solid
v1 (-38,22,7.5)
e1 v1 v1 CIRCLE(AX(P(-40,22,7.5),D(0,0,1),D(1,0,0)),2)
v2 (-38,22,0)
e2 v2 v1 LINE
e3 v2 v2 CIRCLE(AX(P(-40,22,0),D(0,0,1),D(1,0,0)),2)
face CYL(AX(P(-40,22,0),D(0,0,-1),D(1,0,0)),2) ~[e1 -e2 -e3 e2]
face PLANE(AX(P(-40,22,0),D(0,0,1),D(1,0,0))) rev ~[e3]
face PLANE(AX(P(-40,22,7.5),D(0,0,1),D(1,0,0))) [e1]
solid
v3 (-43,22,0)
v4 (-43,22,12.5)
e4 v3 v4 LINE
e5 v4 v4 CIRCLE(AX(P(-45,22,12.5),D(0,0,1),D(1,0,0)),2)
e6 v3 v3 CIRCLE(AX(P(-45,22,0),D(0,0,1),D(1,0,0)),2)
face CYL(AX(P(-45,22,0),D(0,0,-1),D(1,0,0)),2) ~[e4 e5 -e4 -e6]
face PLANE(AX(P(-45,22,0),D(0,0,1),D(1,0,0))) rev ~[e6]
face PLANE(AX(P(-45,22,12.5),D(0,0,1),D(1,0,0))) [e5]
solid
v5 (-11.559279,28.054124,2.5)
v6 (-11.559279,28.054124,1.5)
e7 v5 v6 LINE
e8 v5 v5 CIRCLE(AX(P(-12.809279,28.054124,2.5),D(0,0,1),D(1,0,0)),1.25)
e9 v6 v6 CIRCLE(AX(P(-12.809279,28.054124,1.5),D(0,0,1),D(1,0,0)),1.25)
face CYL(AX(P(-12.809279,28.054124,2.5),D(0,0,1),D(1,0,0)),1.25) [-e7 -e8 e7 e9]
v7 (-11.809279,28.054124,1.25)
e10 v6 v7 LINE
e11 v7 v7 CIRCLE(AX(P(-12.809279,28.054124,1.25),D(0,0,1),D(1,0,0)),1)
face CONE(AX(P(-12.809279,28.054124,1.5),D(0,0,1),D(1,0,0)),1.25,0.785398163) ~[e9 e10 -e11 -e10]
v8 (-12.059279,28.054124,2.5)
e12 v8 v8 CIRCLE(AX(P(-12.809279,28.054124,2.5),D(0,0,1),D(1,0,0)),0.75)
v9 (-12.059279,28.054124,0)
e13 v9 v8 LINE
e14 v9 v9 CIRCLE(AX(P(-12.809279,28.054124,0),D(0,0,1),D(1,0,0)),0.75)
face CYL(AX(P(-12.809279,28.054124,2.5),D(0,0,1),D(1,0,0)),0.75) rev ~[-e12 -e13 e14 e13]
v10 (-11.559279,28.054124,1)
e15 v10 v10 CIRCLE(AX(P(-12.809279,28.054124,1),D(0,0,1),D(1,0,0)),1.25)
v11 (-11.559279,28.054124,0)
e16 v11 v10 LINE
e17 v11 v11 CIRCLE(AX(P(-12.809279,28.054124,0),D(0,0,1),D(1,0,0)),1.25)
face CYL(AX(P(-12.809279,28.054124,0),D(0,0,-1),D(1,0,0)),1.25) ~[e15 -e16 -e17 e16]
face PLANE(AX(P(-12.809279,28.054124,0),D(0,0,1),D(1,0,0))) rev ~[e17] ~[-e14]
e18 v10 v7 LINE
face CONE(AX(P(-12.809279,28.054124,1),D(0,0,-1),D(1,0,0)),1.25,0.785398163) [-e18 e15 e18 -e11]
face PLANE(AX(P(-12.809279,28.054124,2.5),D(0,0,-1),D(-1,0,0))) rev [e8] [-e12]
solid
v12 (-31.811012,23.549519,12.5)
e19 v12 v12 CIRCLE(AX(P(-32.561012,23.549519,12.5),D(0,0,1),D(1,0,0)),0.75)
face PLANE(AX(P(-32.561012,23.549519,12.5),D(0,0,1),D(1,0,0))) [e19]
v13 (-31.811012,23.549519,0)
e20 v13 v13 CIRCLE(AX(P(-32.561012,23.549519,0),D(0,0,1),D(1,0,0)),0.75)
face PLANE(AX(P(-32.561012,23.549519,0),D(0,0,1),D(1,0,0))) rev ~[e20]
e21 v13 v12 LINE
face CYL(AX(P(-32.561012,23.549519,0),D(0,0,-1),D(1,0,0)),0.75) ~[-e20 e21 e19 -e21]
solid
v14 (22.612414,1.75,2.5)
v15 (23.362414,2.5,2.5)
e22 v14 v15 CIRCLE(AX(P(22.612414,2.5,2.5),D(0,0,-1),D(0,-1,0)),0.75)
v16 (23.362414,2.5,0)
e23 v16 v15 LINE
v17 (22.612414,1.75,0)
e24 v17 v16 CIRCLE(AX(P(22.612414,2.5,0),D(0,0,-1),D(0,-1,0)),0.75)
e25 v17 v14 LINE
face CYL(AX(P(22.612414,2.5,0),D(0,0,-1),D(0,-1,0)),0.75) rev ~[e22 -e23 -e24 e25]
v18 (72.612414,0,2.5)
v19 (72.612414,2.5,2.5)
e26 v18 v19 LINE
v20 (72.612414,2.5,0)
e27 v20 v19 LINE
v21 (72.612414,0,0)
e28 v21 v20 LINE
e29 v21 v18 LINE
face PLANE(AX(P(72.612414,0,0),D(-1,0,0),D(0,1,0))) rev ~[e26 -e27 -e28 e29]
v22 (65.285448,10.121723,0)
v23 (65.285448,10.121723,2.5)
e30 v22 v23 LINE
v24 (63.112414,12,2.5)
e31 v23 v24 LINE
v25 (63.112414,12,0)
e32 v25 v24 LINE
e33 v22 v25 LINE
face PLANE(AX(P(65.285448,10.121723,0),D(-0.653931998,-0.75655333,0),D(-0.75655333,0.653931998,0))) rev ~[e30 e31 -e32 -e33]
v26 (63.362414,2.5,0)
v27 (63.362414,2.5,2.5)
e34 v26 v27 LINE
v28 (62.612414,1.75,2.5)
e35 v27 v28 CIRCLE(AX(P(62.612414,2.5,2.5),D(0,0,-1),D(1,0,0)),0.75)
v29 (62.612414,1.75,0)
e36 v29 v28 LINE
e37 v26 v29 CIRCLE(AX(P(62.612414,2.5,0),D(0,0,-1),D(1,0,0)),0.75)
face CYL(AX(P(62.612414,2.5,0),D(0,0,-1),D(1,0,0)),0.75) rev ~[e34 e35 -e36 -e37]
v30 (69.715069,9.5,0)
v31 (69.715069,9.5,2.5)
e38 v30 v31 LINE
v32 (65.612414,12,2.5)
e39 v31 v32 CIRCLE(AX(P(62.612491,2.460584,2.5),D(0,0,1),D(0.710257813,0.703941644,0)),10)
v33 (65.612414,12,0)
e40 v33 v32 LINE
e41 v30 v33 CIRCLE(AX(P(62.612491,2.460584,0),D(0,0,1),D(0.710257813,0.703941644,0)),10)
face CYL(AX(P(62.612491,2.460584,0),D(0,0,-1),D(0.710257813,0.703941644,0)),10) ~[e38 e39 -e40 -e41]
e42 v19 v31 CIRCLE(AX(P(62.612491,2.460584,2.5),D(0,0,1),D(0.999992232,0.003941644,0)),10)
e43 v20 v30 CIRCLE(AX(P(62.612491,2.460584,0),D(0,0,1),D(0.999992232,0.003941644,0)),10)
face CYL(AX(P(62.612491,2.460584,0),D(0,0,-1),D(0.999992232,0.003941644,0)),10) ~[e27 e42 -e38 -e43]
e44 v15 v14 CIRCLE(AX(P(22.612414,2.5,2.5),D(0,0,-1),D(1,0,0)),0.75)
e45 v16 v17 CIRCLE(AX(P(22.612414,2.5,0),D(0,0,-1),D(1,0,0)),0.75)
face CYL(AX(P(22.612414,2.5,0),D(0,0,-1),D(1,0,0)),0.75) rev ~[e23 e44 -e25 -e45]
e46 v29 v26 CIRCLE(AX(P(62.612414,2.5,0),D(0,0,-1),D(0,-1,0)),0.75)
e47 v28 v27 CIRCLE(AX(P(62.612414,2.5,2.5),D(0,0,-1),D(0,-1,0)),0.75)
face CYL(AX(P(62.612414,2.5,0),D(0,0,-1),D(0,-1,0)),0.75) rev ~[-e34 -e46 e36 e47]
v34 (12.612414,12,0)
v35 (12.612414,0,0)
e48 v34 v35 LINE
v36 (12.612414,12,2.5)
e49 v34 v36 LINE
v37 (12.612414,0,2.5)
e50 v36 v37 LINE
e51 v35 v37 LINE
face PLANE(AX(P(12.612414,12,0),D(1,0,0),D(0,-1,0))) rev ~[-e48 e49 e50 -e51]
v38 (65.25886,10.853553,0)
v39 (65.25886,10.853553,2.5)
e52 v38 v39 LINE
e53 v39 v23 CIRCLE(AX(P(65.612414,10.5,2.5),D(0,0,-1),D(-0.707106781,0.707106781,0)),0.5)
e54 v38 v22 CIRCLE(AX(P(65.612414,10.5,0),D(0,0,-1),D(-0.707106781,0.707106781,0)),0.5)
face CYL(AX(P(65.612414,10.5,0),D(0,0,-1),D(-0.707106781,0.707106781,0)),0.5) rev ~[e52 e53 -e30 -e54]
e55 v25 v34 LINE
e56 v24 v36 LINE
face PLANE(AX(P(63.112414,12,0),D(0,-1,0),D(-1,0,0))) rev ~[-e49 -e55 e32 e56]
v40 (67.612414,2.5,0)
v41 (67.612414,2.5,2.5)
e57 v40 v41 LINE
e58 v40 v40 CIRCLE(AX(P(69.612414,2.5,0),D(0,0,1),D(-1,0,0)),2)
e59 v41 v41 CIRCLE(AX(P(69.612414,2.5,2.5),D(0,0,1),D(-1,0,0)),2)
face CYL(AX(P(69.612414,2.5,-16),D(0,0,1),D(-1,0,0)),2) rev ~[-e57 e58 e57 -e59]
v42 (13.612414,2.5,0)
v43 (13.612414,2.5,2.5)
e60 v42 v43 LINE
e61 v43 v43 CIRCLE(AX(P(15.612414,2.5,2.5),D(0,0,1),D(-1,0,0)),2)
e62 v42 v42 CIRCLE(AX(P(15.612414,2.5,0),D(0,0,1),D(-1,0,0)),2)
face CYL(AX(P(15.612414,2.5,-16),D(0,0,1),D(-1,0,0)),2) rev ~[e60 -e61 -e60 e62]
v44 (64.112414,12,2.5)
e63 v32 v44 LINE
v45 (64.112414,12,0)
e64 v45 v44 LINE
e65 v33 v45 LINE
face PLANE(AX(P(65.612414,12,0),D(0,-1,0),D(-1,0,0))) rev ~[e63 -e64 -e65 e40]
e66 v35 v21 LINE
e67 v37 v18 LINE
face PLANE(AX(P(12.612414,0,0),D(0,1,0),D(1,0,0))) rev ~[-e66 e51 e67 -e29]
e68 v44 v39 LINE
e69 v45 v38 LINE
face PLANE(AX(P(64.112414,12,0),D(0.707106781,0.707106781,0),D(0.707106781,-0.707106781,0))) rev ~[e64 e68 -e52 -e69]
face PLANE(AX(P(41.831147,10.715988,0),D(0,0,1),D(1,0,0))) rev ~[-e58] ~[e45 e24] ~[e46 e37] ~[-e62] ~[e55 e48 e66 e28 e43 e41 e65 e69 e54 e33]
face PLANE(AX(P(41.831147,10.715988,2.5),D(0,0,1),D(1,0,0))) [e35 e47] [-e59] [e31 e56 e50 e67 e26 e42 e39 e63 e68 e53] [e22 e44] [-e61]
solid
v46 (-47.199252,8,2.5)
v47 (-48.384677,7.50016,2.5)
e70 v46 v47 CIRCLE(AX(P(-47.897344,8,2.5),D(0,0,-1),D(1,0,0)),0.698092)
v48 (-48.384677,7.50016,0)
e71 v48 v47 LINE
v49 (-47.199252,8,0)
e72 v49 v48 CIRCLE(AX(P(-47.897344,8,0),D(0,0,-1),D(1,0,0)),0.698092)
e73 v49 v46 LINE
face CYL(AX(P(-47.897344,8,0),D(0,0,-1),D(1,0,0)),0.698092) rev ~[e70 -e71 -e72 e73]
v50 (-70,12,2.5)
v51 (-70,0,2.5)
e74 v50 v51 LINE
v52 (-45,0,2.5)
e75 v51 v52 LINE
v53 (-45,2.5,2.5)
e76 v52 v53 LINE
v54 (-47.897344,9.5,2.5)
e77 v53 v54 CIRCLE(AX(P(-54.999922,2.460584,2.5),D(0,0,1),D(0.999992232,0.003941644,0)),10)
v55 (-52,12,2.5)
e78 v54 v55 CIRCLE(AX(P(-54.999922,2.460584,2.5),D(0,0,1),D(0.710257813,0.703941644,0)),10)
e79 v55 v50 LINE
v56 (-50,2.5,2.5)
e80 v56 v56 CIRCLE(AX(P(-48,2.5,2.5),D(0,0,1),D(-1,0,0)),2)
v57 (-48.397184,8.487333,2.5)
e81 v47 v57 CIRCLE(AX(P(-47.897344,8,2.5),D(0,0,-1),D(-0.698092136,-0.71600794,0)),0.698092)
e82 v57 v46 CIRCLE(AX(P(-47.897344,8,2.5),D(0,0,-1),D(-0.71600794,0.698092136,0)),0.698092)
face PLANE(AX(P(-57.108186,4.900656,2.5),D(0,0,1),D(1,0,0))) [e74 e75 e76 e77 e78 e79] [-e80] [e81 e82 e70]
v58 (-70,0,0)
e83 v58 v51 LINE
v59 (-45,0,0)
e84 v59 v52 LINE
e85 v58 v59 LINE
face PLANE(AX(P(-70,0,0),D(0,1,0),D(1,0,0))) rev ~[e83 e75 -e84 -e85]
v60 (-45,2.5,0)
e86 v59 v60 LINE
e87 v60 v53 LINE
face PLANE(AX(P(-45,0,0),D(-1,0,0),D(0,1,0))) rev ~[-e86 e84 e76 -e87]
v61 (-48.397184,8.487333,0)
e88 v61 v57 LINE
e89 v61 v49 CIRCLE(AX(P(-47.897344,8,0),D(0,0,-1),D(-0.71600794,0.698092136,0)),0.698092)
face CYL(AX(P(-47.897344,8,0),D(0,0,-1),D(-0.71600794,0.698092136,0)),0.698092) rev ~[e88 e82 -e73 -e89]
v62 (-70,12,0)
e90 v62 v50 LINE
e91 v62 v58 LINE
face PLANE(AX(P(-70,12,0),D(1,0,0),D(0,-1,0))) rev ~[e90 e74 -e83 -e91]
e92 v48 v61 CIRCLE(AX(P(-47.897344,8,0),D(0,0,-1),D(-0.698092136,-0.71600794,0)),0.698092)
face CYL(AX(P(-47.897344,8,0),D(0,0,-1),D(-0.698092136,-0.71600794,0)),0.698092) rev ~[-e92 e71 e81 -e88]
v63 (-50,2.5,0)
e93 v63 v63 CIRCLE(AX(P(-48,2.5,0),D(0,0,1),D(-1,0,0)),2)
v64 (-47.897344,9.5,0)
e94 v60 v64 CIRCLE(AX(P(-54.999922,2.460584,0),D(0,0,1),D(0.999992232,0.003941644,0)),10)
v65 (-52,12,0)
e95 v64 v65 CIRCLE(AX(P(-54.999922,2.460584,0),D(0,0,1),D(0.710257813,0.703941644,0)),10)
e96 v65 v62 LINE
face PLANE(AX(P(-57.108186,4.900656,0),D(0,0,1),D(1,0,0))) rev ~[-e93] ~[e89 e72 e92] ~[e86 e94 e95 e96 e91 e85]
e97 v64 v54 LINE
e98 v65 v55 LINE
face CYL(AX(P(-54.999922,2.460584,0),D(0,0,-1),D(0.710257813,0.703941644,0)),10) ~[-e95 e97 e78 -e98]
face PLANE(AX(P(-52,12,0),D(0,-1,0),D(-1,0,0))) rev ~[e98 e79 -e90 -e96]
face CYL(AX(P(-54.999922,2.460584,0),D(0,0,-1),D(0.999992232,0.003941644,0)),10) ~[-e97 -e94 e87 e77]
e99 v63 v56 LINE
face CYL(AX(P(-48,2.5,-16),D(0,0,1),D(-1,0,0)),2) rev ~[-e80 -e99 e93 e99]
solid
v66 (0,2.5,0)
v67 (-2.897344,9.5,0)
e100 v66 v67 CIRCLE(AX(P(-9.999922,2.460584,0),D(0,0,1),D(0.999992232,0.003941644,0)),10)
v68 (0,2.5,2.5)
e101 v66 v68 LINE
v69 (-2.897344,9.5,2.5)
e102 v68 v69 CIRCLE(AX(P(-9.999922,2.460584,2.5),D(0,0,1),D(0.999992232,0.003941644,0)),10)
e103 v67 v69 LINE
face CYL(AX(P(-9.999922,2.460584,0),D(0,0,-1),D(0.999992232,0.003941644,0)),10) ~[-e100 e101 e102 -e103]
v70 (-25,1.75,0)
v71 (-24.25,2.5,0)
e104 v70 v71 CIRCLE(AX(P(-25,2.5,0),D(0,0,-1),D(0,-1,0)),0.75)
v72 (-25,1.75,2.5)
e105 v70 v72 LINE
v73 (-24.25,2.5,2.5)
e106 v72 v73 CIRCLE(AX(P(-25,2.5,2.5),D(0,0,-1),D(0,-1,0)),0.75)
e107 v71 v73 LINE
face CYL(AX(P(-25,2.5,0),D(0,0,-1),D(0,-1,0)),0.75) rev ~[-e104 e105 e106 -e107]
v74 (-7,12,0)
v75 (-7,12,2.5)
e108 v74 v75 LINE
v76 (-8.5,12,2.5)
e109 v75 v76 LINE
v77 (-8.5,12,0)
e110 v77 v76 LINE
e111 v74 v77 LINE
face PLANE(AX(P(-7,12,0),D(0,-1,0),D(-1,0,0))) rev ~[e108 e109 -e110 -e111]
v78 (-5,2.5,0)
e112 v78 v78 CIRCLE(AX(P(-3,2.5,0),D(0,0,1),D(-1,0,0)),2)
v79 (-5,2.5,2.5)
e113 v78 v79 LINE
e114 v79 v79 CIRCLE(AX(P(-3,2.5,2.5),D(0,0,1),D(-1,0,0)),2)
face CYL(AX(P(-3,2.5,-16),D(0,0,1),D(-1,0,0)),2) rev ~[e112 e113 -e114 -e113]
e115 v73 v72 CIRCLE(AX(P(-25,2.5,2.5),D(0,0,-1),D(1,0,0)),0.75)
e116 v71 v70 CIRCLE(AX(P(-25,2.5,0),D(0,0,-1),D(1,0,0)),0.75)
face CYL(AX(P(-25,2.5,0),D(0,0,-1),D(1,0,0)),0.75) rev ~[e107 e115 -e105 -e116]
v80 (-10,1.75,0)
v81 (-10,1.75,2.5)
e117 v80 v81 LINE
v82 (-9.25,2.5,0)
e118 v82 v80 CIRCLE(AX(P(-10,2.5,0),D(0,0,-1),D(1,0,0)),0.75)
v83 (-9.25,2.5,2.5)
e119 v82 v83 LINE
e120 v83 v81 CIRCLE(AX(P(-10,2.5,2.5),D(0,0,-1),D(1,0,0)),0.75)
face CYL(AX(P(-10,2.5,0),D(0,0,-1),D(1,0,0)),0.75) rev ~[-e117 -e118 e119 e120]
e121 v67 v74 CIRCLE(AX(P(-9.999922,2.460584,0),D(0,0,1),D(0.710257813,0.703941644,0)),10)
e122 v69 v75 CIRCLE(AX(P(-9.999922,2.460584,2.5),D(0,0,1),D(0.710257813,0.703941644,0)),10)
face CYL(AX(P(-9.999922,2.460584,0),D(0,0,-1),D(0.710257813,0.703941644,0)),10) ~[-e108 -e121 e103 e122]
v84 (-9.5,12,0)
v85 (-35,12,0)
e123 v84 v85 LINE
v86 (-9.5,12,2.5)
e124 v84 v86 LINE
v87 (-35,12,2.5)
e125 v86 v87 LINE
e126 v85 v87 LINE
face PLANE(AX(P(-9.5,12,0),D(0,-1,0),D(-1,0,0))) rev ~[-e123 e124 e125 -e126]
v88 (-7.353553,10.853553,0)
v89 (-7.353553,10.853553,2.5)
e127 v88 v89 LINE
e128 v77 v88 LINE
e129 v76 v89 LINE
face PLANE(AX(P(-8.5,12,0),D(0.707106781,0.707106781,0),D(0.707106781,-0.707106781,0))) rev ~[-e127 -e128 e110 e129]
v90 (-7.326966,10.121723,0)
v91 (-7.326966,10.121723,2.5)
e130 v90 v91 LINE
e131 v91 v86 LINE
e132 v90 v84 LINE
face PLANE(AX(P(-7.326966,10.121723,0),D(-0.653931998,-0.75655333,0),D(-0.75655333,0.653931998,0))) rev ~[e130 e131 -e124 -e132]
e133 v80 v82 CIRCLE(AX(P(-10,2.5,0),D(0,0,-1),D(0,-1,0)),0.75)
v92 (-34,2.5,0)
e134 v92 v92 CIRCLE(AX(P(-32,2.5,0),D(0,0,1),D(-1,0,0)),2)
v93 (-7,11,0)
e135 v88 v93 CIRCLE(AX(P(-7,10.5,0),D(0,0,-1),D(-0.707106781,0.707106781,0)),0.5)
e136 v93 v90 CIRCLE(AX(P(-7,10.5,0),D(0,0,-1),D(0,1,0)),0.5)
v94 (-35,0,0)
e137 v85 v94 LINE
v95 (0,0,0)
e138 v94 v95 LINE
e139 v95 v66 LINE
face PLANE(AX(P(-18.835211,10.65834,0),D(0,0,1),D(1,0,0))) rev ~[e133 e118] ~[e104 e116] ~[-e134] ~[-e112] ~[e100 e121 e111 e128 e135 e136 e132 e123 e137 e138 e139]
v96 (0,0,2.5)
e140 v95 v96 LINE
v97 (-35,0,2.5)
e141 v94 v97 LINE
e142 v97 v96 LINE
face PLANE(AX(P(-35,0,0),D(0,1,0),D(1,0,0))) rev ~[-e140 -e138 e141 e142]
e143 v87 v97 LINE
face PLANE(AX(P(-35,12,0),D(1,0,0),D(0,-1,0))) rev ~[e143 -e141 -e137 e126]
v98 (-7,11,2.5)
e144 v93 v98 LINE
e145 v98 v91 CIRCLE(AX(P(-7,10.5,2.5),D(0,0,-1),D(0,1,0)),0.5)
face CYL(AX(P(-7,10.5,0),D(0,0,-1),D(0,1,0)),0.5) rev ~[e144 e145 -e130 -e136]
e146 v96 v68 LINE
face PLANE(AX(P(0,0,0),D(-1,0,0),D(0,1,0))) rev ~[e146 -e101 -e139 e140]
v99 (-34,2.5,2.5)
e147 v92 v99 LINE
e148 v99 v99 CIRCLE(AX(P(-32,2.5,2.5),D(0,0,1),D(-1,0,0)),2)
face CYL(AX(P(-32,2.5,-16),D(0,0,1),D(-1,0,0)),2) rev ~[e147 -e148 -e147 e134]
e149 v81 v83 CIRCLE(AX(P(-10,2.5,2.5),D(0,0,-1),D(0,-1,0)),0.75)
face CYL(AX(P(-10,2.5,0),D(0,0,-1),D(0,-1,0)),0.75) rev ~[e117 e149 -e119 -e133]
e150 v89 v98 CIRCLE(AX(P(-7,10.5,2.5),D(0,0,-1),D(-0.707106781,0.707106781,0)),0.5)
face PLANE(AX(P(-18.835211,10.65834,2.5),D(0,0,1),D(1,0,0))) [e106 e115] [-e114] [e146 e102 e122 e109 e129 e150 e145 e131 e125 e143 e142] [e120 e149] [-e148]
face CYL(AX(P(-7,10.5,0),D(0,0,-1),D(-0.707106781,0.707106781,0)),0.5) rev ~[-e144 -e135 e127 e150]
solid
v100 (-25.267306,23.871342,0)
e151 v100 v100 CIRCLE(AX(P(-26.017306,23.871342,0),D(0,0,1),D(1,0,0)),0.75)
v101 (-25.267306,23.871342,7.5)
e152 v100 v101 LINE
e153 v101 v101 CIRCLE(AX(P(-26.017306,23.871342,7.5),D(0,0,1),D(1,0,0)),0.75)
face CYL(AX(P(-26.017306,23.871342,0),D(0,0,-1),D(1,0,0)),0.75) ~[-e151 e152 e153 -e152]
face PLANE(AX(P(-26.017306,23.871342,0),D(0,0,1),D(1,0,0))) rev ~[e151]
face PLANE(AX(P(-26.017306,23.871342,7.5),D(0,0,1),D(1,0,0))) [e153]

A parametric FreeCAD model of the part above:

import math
import FreeCAD as App
import Part
import Sketcher

V = App.Vector
Q = App.Units.Quantity


def edges_at(feature, points):
    """Names of the edges that pass closest to the given points."""
    edges = feature.Shape.Edges
    near = lambda p: min(range(len(edges)), key=lambda i: edges[i].distToShape(Part.Vertex(*p))[0])
    return sorted({f"Edge{near(p) + 1}" for p in points})

doc = App.newDocument("Part")
body = doc.addObject("PartDesign::Body", "Body")

sketch1 = body.newObject("Sketcher::SketchObject", "Sketch")
sketch1.AttachmentSupport = (doc.getObject("XY_Plane"), [""])
sketch1.MapMode = "FlatFace"
sketch1.addGeometry([
    Part.LineSegment(V(-70, 0, 0), V(-45, 0, 0)),
    Part.LineSegment(V(-45, 0, 0), V(-45, 2.5, 0)),
    Part.ArcOfCircle(Part.Circle(V(-55, 2.5, 0), V(0, 0, 1), 10), math.radians(0), math.radians(45)),
    Part.ArcOfCircle(Part.Circle(V(-55, 2.5, 0), V(0, 0, 1), 10), math.radians(45), math.radians(73)),
    Part.LineSegment(V(-52, 12, 0), V(-70, 12, 0)),
    Part.LineSegment(V(-70, 12, 0), V(-70, 0, 0)),
    Part.ArcOfCircle(Part.Circle(V(-47.9, 8, 0), V(0, 0, 1), 0.7), math.radians(0), math.radians(136)),
    Part.ArcOfCircle(Part.Circle(V(-47.9, 8, 0), V(0, 0, 1), 0.7), math.radians(-134), math.radians(0)),
    Part.ArcOfCircle(Part.Circle(V(-47.9, 8, 0), V(0, 0, 1), 0.7), math.radians(136), math.radians(226)),
], False)
sketch1.addConstraint([
    Sketcher.Constraint("Coincident", 0, 2, 1, 1),
    Sketcher.Constraint("Coincident", 1, 2, 2, 1),
    Sketcher.Constraint("Tangent", 2, 2, 3, 1),
    Sketcher.Constraint("Coincident", 3, 2, 4, 1),
    Sketcher.Constraint("Coincident", 4, 2, 5, 1),
    Sketcher.Constraint("Coincident", 5, 2, 0, 1),
    Sketcher.Constraint("Tangent", 6, 1, 7, 2),
    Sketcher.Constraint("Tangent", 7, 1, 8, 2),
    Sketcher.Constraint("Tangent", 8, 1, 6, 2),
    Sketcher.Constraint("Horizontal", 0),
    Sketcher.Constraint("Vertical", 1),
    Sketcher.Constraint("Horizontal", 4),
    Sketcher.Constraint("Vertical", 5),
    Sketcher.Constraint("Equal", 2, 3),
    Sketcher.Constraint("PointOnObject", 0, 2, -1),
    Sketcher.Constraint("Horizontal", 8, 3, 6, 1),
    Sketcher.Constraint("Vertical", 8, 3, 2, 2),
    Sketcher.Constraint("Radius", 2, Q("10 mm")),
    Sketcher.Constraint("DistanceX", 0, 1, 0, 2, Q("25 mm")),
    Sketcher.Constraint("DistanceX", 4, 2, 4, 1, Q("18 mm")),
    Sketcher.Constraint("DistanceY", 5, 2, 5, 1, Q("12 mm")),
    Sketcher.Constraint("DistanceY", 1, 1, 1, 2, Q("2.5 mm")),
    Sketcher.Constraint("DistanceY", -1, 1, 6, 3, Q("8 mm")),
    Sketcher.Constraint("DistanceX", 0, 2, -1, 1, Q("45 mm")),
    Sketcher.Constraint("DistanceY", 1, 2, 2, 2, Q("7 mm")),
    Sketcher.Constraint("Radius", 6, Q("0.698092 mm")),
    Sketcher.Constraint("DistanceY", -1, 1, 7, 1, Q("7.50016 mm")),
    Sketcher.Constraint("DistanceX", 8, 1, 6, 3, Q("0.49984 mm")),
])
pad1 = body.newObject("PartDesign::Pad", "Pad")
pad1.Profile = sketch1
pad1.Length = 2.5

sketch2 = body.newObject("Sketcher::SketchObject", "Sketch001")
sketch2.AttachmentSupport = (doc.getObject("XY_Plane"), [""])
sketch2.MapMode = "FlatFace"
sketch2.addGeometry([
    Part.Circle(V(-3, 2.5, 0), V(0, 0, 1), 2),
    Part.Circle(V(69.6, 2.5, 0), V(0, 0, 1), 2),
    Part.Circle(V(-48, 2.5, 0), V(0, 0, 1), 2),
    Part.Circle(V(-32, 2.5, 0), V(0, 0, 1), 2),
    Part.Circle(V(15.6, 2.5, 0), V(0, 0, 1), 2),
], False)
sketch2.addConstraint([
    Sketcher.Constraint("Equal", 0, 1),
    Sketcher.Constraint("Equal", 1, 2),
    Sketcher.Constraint("Equal", 2, 3),
    Sketcher.Constraint("Equal", 3, 4),
    Sketcher.Constraint("Horizontal", 0, 3, 1, 3),
    Sketcher.Constraint("Horizontal", 1, 3, 2, 3),
    Sketcher.Constraint("Horizontal", 2, 3, 3, 3),
    Sketcher.Constraint("Horizontal", 3, 3, 4, 3),
    Sketcher.Constraint("Diameter", 0, Q("4 mm")),
    Sketcher.Constraint("DistanceX", 0, 3, -1, 1, Q("3 mm")),
    Sketcher.Constraint("DistanceX", 2, 3, -1, 1, Q("48 mm")),
    Sketcher.Constraint("DistanceX", 3, 3, -1, 1, Q("32 mm")),
    Sketcher.Constraint("DistanceX", 4, 3, 1, 3, Q("54 mm")),
    Sketcher.Constraint("DistanceY", -1, 1, 0, 3, Q("2.5 mm")),
    Sketcher.Constraint("DistanceX", -1, 1, 1, 3, Q("69.612414 mm")),
])
doc.recompute()
hole = body.newObject("PartDesign::Hole", "Hole")
hole.Profile = sketch2
hole.ThreadType = "None"
hole.Diameter = 4
hole.DepthType = "Dimension"
hole.Depth = 16
hole.DrillPoint = "Angled"
hole.DrillPointAngle = 118
hole.Reversed = True
body2 = doc.addObject("PartDesign::Body", "Body001")

sketch3 = body2.newObject("Sketcher::SketchObject", "Sketch002")
sketch3.AttachmentSupport = (doc.getObject("XY_Plane001"), [""])
sketch3.MapMode = "FlatFace"
sketch3.addGeometry([
    Part.LineSegment(V(12.6, 12, 0), V(12.6, 0, 0)),
    Part.LineSegment(V(12.6, 0, 0), V(72.6, 0, 0)),
    Part.LineSegment(V(72.6, 0, 0), V(72.6, 2.5, 0)),
    Part.ArcOfCircle(Part.Circle(V(62.6, 2.5, 0), V(0, 0, 1), 10), math.radians(0), math.radians(45)),
    Part.ArcOfCircle(Part.Circle(V(62.6, 2.5, 0), V(0, 0, 1), 10), math.radians(45), math.radians(73)),
    Part.LineSegment(V(65.6, 12, 0), V(64.1, 12, 0)),
    Part.LineSegment(V(64.1, 12, 0), V(65.3, 10.9, 0)),
    Part.ArcOfCircle(Part.Circle(V(65.6, 10.5, 0), V(0, 0, 1), 0.5), math.radians(-131), math.radians(135)),
    Part.LineSegment(V(65.3, 10.1, 0), V(63.1, 12, 0)),
    Part.LineSegment(V(63.1, 12, 0), V(12.6, 12, 0)),
    Part.ArcOfCircle(Part.Circle(V(22.6, 2.5, 0), V(0, 0, 1), 0.8), math.radians(0), math.radians(270)),
    Part.ArcOfCircle(Part.Circle(V(22.6, 2.5, 0), V(0, 0, 1), 0.8), math.radians(-90), math.radians(0)),
    Part.ArcOfCircle(Part.Circle(V(62.6, 2.5, 0), V(0, 0, 1), 0.8), math.radians(0), math.radians(270)),
    Part.ArcOfCircle(Part.Circle(V(62.6, 2.5, 0), V(0, 0, 1), 0.8), math.radians(-90), math.radians(0)),
], False)
sketch3.addConstraint([
    Sketcher.Constraint("Coincident", 0, 2, 1, 1),
    Sketcher.Constraint("Coincident", 1, 2, 2, 1),
    Sketcher.Constraint("Coincident", 2, 2, 3, 1),
    Sketcher.Constraint("Tangent", 3, 2, 4, 1),
    Sketcher.Constraint("Coincident", 4, 2, 5, 1),
    Sketcher.Constraint("Coincident", 5, 2, 6, 1),
    Sketcher.Constraint("Coincident", 6, 2, 7, 2),
    Sketcher.Constraint("Tangent", 7, 1, 8, 1),
    Sketcher.Constraint("Coincident", 8, 2, 9, 1),
    Sketcher.Constraint("Coincident", 9, 2, 0, 1),
    Sketcher.Constraint("Tangent", 10, 1, 11, 2),
    Sketcher.Constraint("Coincident", 11, 1, 10, 2),
    Sketcher.Constraint("Tangent", 12, 1, 13, 2),
    Sketcher.Constraint("Coincident", 13, 1, 12, 2),
    Sketcher.Constraint("Vertical", 0),
    Sketcher.Constraint("Horizontal", 1),
    Sketcher.Constraint("Vertical", 2),
    Sketcher.Constraint("Horizontal", 5),
    Sketcher.Constraint("Horizontal", 9),
    Sketcher.Constraint("Equal", 3, 4),
    Sketcher.Constraint("Equal", 11, 12),
    Sketcher.Constraint("PointOnObject", 0, 2, -1),
    Sketcher.Constraint("Horizontal", 11, 3, 12, 3),
    Sketcher.Constraint("Horizontal", 13, 3, 2, 2),
    Sketcher.Constraint("Horizontal", 5, 2, 8, 2),
    Sketcher.Constraint("Horizontal", 2, 2, 10, 1),
    Sketcher.Constraint("Horizontal", 10, 1, 12, 1),
    Sketcher.Constraint("Vertical", 7, 3, 4, 2),
    Sketcher.Constraint("Vertical", 10, 3, 11, 1),
    Sketcher.Constraint("Vertical", 12, 3, 13, 1),
    Sketcher.Constraint("Radius", 3, Q("10 mm")),
    Sketcher.Constraint("Radius", 7, Q("0.5 mm")),
    Sketcher.Constraint("DistanceX", 1, 1, 1, 2, Q("60 mm")),
    Sketcher.Constraint("DistanceY", 0, 2, 0, 1, Q("12 mm")),
    Sketcher.Constraint("Angle", 6, Q("-45 deg")),
    Sketcher.Constraint("Radius", 10, Q("0.75 mm")),
    Sketcher.Constraint("DistanceX", 5, 2, 5, 1, Q("1.5 mm")),
    Sketcher.Constraint("DistanceX", 9, 2, 9, 1, Q("50.5 mm")),
    Sketcher.Constraint("DistanceY", 2, 1, 2, 2, Q("2.5 mm")),
    Sketcher.Constraint("DistanceX", 10, 3, 7, 3, Q("43 mm")),
    Sketcher.Constraint("DistanceY", 10, 3, 7, 3, Q("8 mm")),
    Sketcher.Constraint("DistanceX", 12, 3, 7, 3, Q("3 mm")),
    Sketcher.Constraint("DistanceX", 0, 2, 10, 3, Q("10 mm")),
    Sketcher.Constraint("DistanceY", 3, 2, 7, 3, Q("1 mm")),
    Sketcher.Constraint("DistanceX", -1, 1, 3, 3, Q("62.612491 mm")),
])
pad2 = body2.newObject("PartDesign::Pad", "Pad001")
pad2.Profile = sketch3
pad2.Length = 2.5

sketch4 = body2.newObject("Sketcher::SketchObject", "Sketch003")
sketch4.AttachmentSupport = (doc.getObject("XY_Plane001"), [""])
sketch4.MapMode = "FlatFace"
sketch4.addGeometry([
    Part.Circle(V(-3, 2.5, 0), V(0, 0, 1), 2),
    Part.Circle(V(69.6, 2.5, 0), V(0, 0, 1), 2),
    Part.Circle(V(-48, 2.5, 0), V(0, 0, 1), 2),
    Part.Circle(V(-32, 2.5, 0), V(0, 0, 1), 2),
    Part.Circle(V(15.6, 2.5, 0), V(0, 0, 1), 2),
], False)
sketch4.addConstraint([
    Sketcher.Constraint("Equal", 0, 1),
    Sketcher.Constraint("Equal", 1, 2),
    Sketcher.Constraint("Equal", 2, 3),
    Sketcher.Constraint("Equal", 3, 4),
    Sketcher.Constraint("Horizontal", 0, 3, 1, 3),
    Sketcher.Constraint("Horizontal", 1, 3, 2, 3),
    Sketcher.Constraint("Horizontal", 2, 3, 3, 3),
    Sketcher.Constraint("Horizontal", 3, 3, 4, 3),
    Sketcher.Constraint("Diameter", 0, Q("4 mm")),
    Sketcher.Constraint("DistanceX", 0, 3, -1, 1, Q("3 mm")),
    Sketcher.Constraint("DistanceX", 2, 3, -1, 1, Q("48 mm")),
    Sketcher.Constraint("DistanceX", 3, 3, -1, 1, Q("32 mm")),
    Sketcher.Constraint("DistanceX", 4, 3, 1, 3, Q("54 mm")),
    Sketcher.Constraint("DistanceY", -1, 1, 0, 3, Q("2.5 mm")),
    Sketcher.Constraint("DistanceX", -1, 1, 1, 3, Q("69.612414 mm")),
])
doc.recompute()
hole2 = body2.newObject("PartDesign::Hole", "Hole001")
hole2.Profile = sketch4
hole2.ThreadType = "None"
hole2.Diameter = 4
hole2.DepthType = "Dimension"
hole2.Depth = 16
hole2.DrillPoint = "Angled"
hole2.DrillPointAngle = 118
hole2.Reversed = True
body3 = doc.addObject("PartDesign::Body", "Body002")

sketch5 = body3.newObject("Sketcher::SketchObject", "Sketch004")
sketch5.AttachmentSupport = (doc.getObject("XY_Plane002"), [""])
sketch5.MapMode = "FlatFace"
sketch5.addGeometry([
    Part.ArcOfCircle(Part.Circle(V(-10, 2.46, 0), V(0, 0, 1), 10), math.radians(45), math.radians(73)),
    Part.LineSegment(V(-7, 12, 0), V(-8.5, 12, 0)),
    Part.LineSegment(V(-8.5, 12, 0), V(-7.35, 10.85, 0)),
    Part.ArcOfCircle(Part.Circle(V(-7, 10.5, 0), V(0, 0, 1), 0.5), math.radians(90), math.radians(135)),
    Part.ArcOfCircle(Part.Circle(V(-7, 10.5, 0), V(0, 0, 1), 0.5), math.radians(-131), math.radians(90)),
    Part.LineSegment(V(-7.33, 10.12, 0), V(-9.5, 12, 0)),
    Part.LineSegment(V(-9.5, 12, 0), V(-35, 12, 0)),
    Part.LineSegment(V(-35, 12, 0), V(-35, 0, 0)),
    Part.LineSegment(V(-35, 0, 0), V(0, 0, 0)),
    Part.LineSegment(V(0, 0, 0), V(0, 2.5, 0)),
    Part.ArcOfCircle(Part.Circle(V(-10, 2.46, 0), V(0, 0, 1), 10), math.radians(0), math.radians(45)),
    Part.ArcOfCircle(Part.Circle(V(-25, 2.5, 0), V(0, 0, 1), 0.75), math.radians(0), math.radians(270)),
    Part.ArcOfCircle(Part.Circle(V(-25, 2.5, 0), V(0, 0, 1), 0.75), math.radians(-90), math.radians(0)),
    Part.ArcOfCircle(Part.Circle(V(-10, 2.5, 0), V(0, 0, 1), 0.75), math.radians(0), math.radians(270)),
    Part.ArcOfCircle(Part.Circle(V(-10, 2.5, 0), V(0, 0, 1), 0.75), math.radians(-90), math.radians(0)),
], False)
sketch5.addConstraint([
    Sketcher.Constraint("Coincident", 0, 2, 1, 1),
    Sketcher.Constraint("Coincident", 1, 2, 2, 1),
    Sketcher.Constraint("Coincident", 2, 2, 3, 2),
    Sketcher.Constraint("Tangent", 3, 1, 4, 2),
    Sketcher.Constraint("Tangent", 4, 1, 5, 1),
    Sketcher.Constraint("Coincident", 5, 2, 6, 1),
    Sketcher.Constraint("Coincident", 6, 2, 7, 1),
    Sketcher.Constraint("Coincident", 7, 2, 8, 1),
    Sketcher.Constraint("Coincident", 8, 2, 9, 1),
    Sketcher.Constraint("Coincident", 9, 2, 10, 1),
    Sketcher.Constraint("Tangent", 10, 2, 0, 1),
    Sketcher.Constraint("Tangent", 11, 1, 12, 2),
    Sketcher.Constraint("Coincident", 12, 1, 11, 2),
    Sketcher.Constraint("Tangent", 13, 1, 14, 2),
    Sketcher.Constraint("Coincident", 14, 1, 13, 2),
    Sketcher.Constraint("Horizontal", 1),
    Sketcher.Constraint("Horizontal", 6),
    Sketcher.Constraint("Vertical", 7),
    Sketcher.Constraint("Horizontal", 8),
    Sketcher.Constraint("Vertical", 9),
    Sketcher.Constraint("Coincident", 8, 2, -1, 1),
    Sketcher.Constraint("Equal", 3, 4),
    Sketcher.Constraint("Equal", 0, 10),
    Sketcher.Constraint("Equal", 12, 13),
    Sketcher.Constraint("Horizontal", 12, 3, 13, 3),
    Sketcher.Constraint("Horizontal", 1, 2, 5, 2),
    Sketcher.Constraint("Horizontal", 14, 3, 9, 2),
    Sketcher.Constraint("Horizontal", 9, 2, 11, 1),
    Sketcher.Constraint("Horizontal", 11, 1, 13, 1),
    Sketcher.Constraint("Vertical", 4, 3, 0, 2),
    Sketcher.Constraint("Vertical", 0, 2, 3, 1),
    Sketcher.Constraint("Vertical", 11, 3, 12, 1),
    Sketcher.Constraint("Vertical", 13, 3, 14, 1),
    Sketcher.Constraint("Radius", 0, Q("10 mm")),
    Sketcher.Constraint("Radius", 3, Q("0.5 mm")),
    Sketcher.Constraint("DistanceX", 8, 1, 8, 2, Q("35 mm")),
    Sketcher.Constraint("DistanceY", 7, 2, 7, 1, Q("12 mm")),
    Sketcher.Constraint("Angle", 2, Q("-45 deg")),
    Sketcher.Constraint("Radius", 11, Q("0.75 mm")),
    Sketcher.Constraint("DistanceX", 1, 2, 1, 1, Q("1.5 mm")),
    Sketcher.Constraint("DistanceX", 6, 2, 6, 1, Q("25.5 mm")),
    Sketcher.Constraint("DistanceY", 9, 1, 9, 2, Q("2.5 mm")),
    Sketcher.Constraint("DistanceX", 3, 3, -1, 1, Q("7 mm")),
    Sketcher.Constraint("DistanceX", 11, 3, -1, 1, Q("25 mm")),
    Sketcher.Constraint("DistanceX", 13, 3, -1, 1, Q("10 mm")),
    Sketcher.Constraint("DistanceY", -1, 1, 3, 1, Q("11 mm")),
    Sketcher.Constraint("DistanceY", 10, 2, 4, 3, Q("1 mm")),
])
pad3 = body3.newObject("PartDesign::Pad", "Pad002")
pad3.Profile = sketch5
pad3.Length = 2.5

sketch6 = body3.newObject("Sketcher::SketchObject", "Sketch005")
sketch6.AttachmentSupport = (doc.getObject("XY_Plane002"), [""])
sketch6.MapMode = "FlatFace"
sketch6.addGeometry([
    Part.Circle(V(-3, 2.5, 0), V(0, 0, 1), 2),
    Part.Circle(V(69.6, 2.5, 0), V(0, 0, 1), 2),
    Part.Circle(V(-48, 2.5, 0), V(0, 0, 1), 2),
    Part.Circle(V(-32, 2.5, 0), V(0, 0, 1), 2),
    Part.Circle(V(15.6, 2.5, 0), V(0, 0, 1), 2),
], False)
sketch6.addConstraint([
    Sketcher.Constraint("Equal", 0, 1),
    Sketcher.Constraint("Equal", 1, 2),
    Sketcher.Constraint("Equal", 2, 3),
    Sketcher.Constraint("Equal", 3, 4),
    Sketcher.Constraint("Horizontal", 0, 3, 1, 3),
    Sketcher.Constraint("Horizontal", 1, 3, 2, 3),
    Sketcher.Constraint("Horizontal", 2, 3, 3, 3),
    Sketcher.Constraint("Horizontal", 3, 3, 4, 3),
    Sketcher.Constraint("Diameter", 0, Q("4 mm")),
    Sketcher.Constraint("DistanceX", 0, 3, -1, 1, Q("3 mm")),
    Sketcher.Constraint("DistanceX", 2, 3, -1, 1, Q("48 mm")),
    Sketcher.Constraint("DistanceX", 3, 3, -1, 1, Q("32 mm")),
    Sketcher.Constraint("DistanceX", 4, 3, 1, 3, Q("54 mm")),
    Sketcher.Constraint("DistanceY", -1, 1, 0, 3, Q("2.5 mm")),
    Sketcher.Constraint("DistanceX", -1, 1, 1, 3, Q("69.612414 mm")),
])
doc.recompute()
hole3 = body3.newObject("PartDesign::Hole", "Hole002")
hole3.Profile = sketch6
hole3.ThreadType = "None"
hole3.Diameter = 4
hole3.DepthType = "Dimension"
hole3.Depth = 16
hole3.DrillPoint = "Angled"
hole3.DrillPointAngle = 118
hole3.Reversed = True
body4 = doc.addObject("PartDesign::Body", "Body003")

sketch7 = body4.newObject("Sketcher::SketchObject", "Sketch006")
sketch7.AttachmentSupport = (doc.getObject("XY_Plane003"), [""])
sketch7.MapMode = "FlatFace"
sketch7.addGeometry(Part.Circle(V(-45, 22, 0), V(0, 0, 1), 2), False)
sketch7.addConstraint([
    Sketcher.Constraint("Diameter", 0, Q("4 mm")),
    Sketcher.Constraint("DistanceX", 0, 3, -1, 1, Q("45 mm")),
    Sketcher.Constraint("DistanceY", -1, 1, 0, 3, Q("22 mm")),
])
pad4 = body4.newObject("PartDesign::Pad", "Pad003")
pad4.Profile = sketch7
pad4.Length = 12.5
body5 = doc.addObject("PartDesign::Body", "Body004")

sketch8 = body5.newObject("Sketcher::SketchObject", "Sketch007")
sketch8.AttachmentSupport = (doc.getObject("XY_Plane004"), [""])
sketch8.MapMode = "FlatFace"
sketch8.addGeometry(Part.Circle(V(-32.6, 23.5, 0), V(0, 0, 1), 0.8), False)
sketch8.addConstraint([
    Sketcher.Constraint("Diameter", 0, Q("1.5 mm")),
    Sketcher.Constraint("DistanceX", 0, 3, -1, 1, Q("32.561012 mm")),
    Sketcher.Constraint("DistanceY", -1, 1, 0, 3, Q("23.549519 mm")),
])
pad5 = body5.newObject("PartDesign::Pad", "Pad004")
pad5.Profile = sketch8
pad5.Length = 12.5
body6 = doc.addObject("PartDesign::Body", "Body005")

sketch9 = body6.newObject("Sketcher::SketchObject", "Sketch008")
sketch9.AttachmentSupport = (doc.getObject("XY_Plane005"), [""])
sketch9.MapMode = "FlatFace"
sketch9.addGeometry(Part.Circle(V(-26, 23.9, 0), V(0, 0, 1), 0.8), False)
sketch9.addConstraint([
    Sketcher.Constraint("Diameter", 0, Q("1.5 mm")),
    Sketcher.Constraint("DistanceY", -1, 1, 0, 3, Q("23.871342 mm")),
    Sketcher.Constraint("DistanceX", 0, 3, -1, 1, Q("26.017306 mm")),
])
pad6 = body6.newObject("PartDesign::Pad", "Pad005")
pad6.Profile = sketch9
pad6.Length = 7.5
body7 = doc.addObject("PartDesign::Body", "Body006")

sketch10 = body7.newObject("Sketcher::SketchObject", "Sketch009")
sketch10.AttachmentSupport = (doc.getObject("XY_Plane006"), [""])
sketch10.MapMode = "FlatFace"
sketch10.addGeometry(Part.Circle(V(-40, 22, 0), V(0, 0, 1), 2), False)
sketch10.addConstraint([
    Sketcher.Constraint("Diameter", 0, Q("4 mm")),
    Sketcher.Constraint("DistanceX", 0, 3, -1, 1, Q("40 mm")),
    Sketcher.Constraint("DistanceY", -1, 1, 0, 3, Q("22 mm")),
])
pad7 = body7.newObject("PartDesign::Pad", "Pad006")
pad7.Profile = sketch10
pad7.Length = 7.5
body8 = doc.addObject("PartDesign::Body", "Body007")

sketch11 = body8.newObject("Sketcher::SketchObject", "Sketch010")
sketch11.AttachmentSupport = (doc.getObject("XY_Plane007"), [""])
sketch11.MapMode = "FlatFace"
sketch11.addGeometry([
    Part.Circle(V(-12.8, 28.1, 0), V(0, 0, 1), 1.2),
    Part.Circle(V(-12.8, 28.1, 0), V(0, 0, 1), 0.8),
], False)
sketch11.addConstraint([
    Sketcher.Constraint("Coincident", 1, 3, 0, 3),
    Sketcher.Constraint("Diameter", 0, Q("2.5 mm")),
    Sketcher.Constraint("Diameter", 1, Q("1.5 mm")),
    Sketcher.Constraint("DistanceX", 0, 3, -1, 1, Q("12.809279 mm")),
    Sketcher.Constraint("DistanceY", -1, 1, 0, 3, Q("28.054124 mm")),
])
pad8 = body8.newObject("PartDesign::Pad", "Pad007")
pad8.Profile = sketch11
pad8.Length = 1.25
doc.recompute()

chamfer = body8.newObject("PartDesign::Chamfer", "Chamfer")
chamfer.Base = (pad8, edges_at(pad8, [(-14.059, 28.054, 1.25)]))
chamfer.Size = 0.25
body9 = doc.addObject("PartDesign::Body", "Body008")
doc.recompute()

body9.BaseFeature = body8
doc.recompute()

mirroring = doc.addObject("Part::Mirroring", "Mirroring")
mirroring.Source = body8
mirroring.Base = V(-12.809279, 28.054124, 1.25)
mirroring.Normal = V(0, 0, 1)
body10 = doc.addObject("PartDesign::Body", "Body009")
body10.BaseFeature = mirroring
boolean = body9.newObject("PartDesign::Boolean", "Boolean")
boolean.Type = "Fuse"
boolean.addObjects([body10])
doc.recompute()
mirroring.Visibility = False

doc.recompute()
